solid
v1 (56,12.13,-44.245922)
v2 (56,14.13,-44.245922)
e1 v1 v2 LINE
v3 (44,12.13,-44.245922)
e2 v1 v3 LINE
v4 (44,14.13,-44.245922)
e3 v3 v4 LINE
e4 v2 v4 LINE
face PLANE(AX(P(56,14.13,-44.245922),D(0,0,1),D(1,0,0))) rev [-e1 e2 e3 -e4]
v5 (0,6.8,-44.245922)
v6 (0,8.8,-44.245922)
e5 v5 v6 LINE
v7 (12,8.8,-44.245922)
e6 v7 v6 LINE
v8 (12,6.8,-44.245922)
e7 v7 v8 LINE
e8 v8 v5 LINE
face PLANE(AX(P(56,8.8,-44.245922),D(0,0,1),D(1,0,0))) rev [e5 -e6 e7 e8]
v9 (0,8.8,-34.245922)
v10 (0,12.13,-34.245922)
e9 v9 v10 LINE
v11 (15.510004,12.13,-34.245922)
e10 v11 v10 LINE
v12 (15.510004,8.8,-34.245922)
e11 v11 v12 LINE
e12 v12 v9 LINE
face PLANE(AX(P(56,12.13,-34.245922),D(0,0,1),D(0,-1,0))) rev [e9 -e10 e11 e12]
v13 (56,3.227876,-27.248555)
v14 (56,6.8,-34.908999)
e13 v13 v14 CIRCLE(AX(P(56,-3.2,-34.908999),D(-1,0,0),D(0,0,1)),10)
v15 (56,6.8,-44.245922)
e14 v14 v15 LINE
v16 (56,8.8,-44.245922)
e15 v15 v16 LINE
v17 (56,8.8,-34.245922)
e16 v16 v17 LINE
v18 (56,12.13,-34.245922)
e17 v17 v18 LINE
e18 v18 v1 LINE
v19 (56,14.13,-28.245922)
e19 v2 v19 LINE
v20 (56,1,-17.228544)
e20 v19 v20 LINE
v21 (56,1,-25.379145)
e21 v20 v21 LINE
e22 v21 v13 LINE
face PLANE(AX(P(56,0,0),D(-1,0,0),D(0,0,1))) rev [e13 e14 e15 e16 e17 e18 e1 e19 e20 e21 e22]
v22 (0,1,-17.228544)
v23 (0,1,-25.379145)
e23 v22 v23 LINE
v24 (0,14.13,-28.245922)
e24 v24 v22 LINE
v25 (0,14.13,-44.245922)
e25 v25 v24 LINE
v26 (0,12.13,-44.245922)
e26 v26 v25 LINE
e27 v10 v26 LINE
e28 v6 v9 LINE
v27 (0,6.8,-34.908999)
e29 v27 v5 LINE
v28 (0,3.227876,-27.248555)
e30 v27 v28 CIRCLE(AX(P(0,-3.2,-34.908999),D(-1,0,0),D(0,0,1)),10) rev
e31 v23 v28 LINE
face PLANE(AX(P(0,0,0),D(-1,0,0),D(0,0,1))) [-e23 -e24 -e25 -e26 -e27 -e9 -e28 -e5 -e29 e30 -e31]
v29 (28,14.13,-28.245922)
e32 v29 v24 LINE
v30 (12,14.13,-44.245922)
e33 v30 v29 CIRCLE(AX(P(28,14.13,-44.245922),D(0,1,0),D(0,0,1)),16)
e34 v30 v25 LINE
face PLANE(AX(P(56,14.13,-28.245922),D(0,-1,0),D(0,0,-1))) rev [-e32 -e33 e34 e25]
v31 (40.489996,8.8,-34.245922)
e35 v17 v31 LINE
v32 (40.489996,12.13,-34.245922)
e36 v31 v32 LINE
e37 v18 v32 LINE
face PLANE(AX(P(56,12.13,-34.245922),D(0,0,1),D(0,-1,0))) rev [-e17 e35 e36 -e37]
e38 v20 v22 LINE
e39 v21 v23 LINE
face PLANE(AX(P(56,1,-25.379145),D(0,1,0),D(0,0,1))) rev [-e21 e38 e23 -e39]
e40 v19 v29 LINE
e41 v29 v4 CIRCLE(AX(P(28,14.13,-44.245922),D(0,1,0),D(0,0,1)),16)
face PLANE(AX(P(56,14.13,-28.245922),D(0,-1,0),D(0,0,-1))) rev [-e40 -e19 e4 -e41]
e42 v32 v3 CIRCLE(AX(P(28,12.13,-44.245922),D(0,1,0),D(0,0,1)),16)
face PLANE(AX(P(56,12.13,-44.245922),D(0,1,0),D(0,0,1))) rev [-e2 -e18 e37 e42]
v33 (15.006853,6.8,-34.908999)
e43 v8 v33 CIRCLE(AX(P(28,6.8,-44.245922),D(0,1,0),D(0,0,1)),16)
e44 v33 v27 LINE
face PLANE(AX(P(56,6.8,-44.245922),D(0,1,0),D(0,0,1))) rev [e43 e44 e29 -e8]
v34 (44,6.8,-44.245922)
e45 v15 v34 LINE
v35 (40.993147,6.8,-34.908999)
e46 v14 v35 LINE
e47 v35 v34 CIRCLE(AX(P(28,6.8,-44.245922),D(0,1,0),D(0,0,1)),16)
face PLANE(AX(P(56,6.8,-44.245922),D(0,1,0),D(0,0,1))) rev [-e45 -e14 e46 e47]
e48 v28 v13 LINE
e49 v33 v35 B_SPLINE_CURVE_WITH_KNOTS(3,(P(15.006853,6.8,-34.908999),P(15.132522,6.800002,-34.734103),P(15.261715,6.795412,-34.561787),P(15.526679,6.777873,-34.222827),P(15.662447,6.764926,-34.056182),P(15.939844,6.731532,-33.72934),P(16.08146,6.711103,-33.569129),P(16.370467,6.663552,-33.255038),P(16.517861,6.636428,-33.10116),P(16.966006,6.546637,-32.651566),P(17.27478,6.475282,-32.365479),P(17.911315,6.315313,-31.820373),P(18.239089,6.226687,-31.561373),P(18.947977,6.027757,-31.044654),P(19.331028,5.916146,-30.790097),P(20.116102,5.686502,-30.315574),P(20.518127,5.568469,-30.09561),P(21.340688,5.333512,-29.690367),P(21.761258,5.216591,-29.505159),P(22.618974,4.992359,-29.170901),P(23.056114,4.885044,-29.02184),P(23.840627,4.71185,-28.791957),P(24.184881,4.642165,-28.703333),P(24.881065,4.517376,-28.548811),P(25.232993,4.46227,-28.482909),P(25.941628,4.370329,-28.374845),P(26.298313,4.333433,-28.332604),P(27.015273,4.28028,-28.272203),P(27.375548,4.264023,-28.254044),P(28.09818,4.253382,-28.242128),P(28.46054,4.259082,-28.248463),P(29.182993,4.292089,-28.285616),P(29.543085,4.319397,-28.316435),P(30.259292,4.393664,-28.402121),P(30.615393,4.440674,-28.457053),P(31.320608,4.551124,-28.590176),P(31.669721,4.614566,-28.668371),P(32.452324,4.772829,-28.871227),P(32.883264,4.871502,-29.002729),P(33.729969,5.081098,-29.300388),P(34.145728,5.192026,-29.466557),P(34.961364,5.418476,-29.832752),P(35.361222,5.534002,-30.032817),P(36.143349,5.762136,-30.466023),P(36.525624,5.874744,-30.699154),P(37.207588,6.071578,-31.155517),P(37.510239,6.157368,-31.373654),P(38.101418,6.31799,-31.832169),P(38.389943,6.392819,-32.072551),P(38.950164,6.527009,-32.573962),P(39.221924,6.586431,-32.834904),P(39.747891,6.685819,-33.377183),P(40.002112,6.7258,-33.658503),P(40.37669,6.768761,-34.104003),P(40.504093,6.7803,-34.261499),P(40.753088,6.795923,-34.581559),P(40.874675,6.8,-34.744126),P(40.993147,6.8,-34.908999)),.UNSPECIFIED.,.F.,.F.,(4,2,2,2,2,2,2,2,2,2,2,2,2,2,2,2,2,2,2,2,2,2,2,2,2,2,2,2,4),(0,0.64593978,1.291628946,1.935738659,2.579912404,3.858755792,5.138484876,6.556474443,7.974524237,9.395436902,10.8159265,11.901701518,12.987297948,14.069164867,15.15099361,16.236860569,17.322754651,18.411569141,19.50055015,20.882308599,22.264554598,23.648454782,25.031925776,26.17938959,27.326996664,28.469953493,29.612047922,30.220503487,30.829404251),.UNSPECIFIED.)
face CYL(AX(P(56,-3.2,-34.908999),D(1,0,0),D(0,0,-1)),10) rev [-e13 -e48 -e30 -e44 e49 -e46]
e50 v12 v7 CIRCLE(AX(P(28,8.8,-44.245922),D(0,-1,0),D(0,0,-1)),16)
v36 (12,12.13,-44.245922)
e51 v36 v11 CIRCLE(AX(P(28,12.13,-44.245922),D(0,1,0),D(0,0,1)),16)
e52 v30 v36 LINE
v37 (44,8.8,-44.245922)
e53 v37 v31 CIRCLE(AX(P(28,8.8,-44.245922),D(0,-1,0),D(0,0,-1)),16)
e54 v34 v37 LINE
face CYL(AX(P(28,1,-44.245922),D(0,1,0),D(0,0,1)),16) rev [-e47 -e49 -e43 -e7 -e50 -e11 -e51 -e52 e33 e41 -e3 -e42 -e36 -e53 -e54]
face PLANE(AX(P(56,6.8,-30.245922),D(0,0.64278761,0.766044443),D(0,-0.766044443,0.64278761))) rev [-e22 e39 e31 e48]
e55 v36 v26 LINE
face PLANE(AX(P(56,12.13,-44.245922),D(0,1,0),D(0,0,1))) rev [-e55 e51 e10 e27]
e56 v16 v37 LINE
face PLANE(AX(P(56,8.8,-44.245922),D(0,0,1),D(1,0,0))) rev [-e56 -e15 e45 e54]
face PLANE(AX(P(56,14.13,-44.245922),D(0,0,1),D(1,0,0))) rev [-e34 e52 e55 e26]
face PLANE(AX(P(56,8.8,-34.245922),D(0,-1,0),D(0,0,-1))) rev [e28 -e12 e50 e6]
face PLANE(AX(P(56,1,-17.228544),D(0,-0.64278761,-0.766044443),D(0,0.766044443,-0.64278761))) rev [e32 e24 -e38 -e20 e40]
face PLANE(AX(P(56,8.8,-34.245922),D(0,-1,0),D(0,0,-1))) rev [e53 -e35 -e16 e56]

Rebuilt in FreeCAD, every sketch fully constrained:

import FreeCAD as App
import Part
import Sketcher

V = App.Vector
Q = App.Units.Quantity


def edges_at(feature, points):
    """Names of the edges that pass closest to the given points."""
    edges = feature.Shape.Edges
    near = lambda p: min(range(len(edges)), key=lambda i: edges[i].distToShape(Part.Vertex(*p))[0])
    return sorted({f"Edge{near(p) + 1}" for p in points})

doc = App.newDocument("Part")
params = doc.addObject("Spreadsheet::Sheet", "Params")
for row, (alias, value) in enumerate([
    ("sketch1_width", "2 mm"),
    ("sketch1_height", "10 mm"),
    ("sketch1_height2", "16 mm"),
    ("sketch1_height3", "14 mm"),
    ("sketch1_width2", "3.33 mm"),
    ("pad1_length", "56 mm"),
    ("fillet_radius", "10 mm"),
    ("sketch2_diameter", "32 mm"),
], start=1):
    params.set(f"A{row}", alias)
    params.set(f"B{row}", "=" + value)
    params.setAlias(f"B{row}", alias)

body = doc.addObject("PartDesign::Body", "Body")

# Sketch on YZ plane
sketch1 = body.newObject("Sketcher::SketchObject", "Sketch")
sketch1.AttachmentSupport = (doc.getObject("YZ_Plane"), [""])
sketch1.MapMode = "FlatFace"
sketch1.addGeometry(Part.LineSegment(V(12.1, -34.2, 0), V(12.1, -44.2, 0)), False)
sketch1.addGeometry(Part.LineSegment(V(12.1, -44.2, 0), V(14.1, -44.2, 0)), False)
sketch1.addGeometry(Part.LineSegment(V(14.1, -44.2, 0), V(14.1, -28.2, 0)), False)
sketch1.addGeometry(Part.LineSegment(V(14.1, -28.2, 0), V(1, -17.2, 0)), False)
sketch1.addGeometry(Part.LineSegment(V(1, -17.2, 0), V(1, -25.4, 0)), False)
sketch1.addGeometry(Part.LineSegment(V(1, -25.4, 0), V(6.8, -30.2, 0)), False)
sketch1.addGeometry(Part.LineSegment(V(6.8, -30.2, 0), V(6.8, -44.2, 0)), False)
sketch1.addGeometry(Part.LineSegment(V(6.8, -44.2, 0), V(8.8, -44.2, 0)), False)
sketch1.addGeometry(Part.LineSegment(V(8.8, -44.2, 0), V(8.8, -34.2, 0)), False)
sketch1.addGeometry(Part.LineSegment(V(8.8, -34.2, 0), V(12.1, -34.2, 0)), False)
sketch1.addConstraint(Sketcher.Constraint("Coincident", 0, 2, 1, 1))
sketch1.addConstraint(Sketcher.Constraint("Coincident", 1, 2, 2, 1))
sketch1.addConstraint(Sketcher.Constraint("Coincident", 2, 2, 3, 1))
sketch1.addConstraint(Sketcher.Constraint("Coincident", 3, 2, 4, 1))
sketch1.addConstraint(Sketcher.Constraint("Coincident", 4, 2, 5, 1))
sketch1.addConstraint(Sketcher.Constraint("Coincident", 5, 2, 6, 1))
sketch1.addConstraint(Sketcher.Constraint("Coincident", 6, 2, 7, 1))
sketch1.addConstraint(Sketcher.Constraint("Coincident", 7, 2, 8, 1))
sketch1.addConstraint(Sketcher.Constraint("Coincident", 8, 2, 9, 1))
sketch1.addConstraint(Sketcher.Constraint("Coincident", 9, 2, 0, 1))
sketch1.addConstraint(Sketcher.Constraint("Vertical", 0))
sketch1.addConstraint(Sketcher.Constraint("Horizontal", 1))
sketch1.addConstraint(Sketcher.Constraint("Vertical", 2))
sketch1.addConstraint(Sketcher.Constraint("Vertical", 4))
sketch1.addConstraint(Sketcher.Constraint("Vertical", 6))
sketch1.addConstraint(Sketcher.Constraint("Horizontal", 7))
sketch1.addConstraint(Sketcher.Constraint("Vertical", 8))
sketch1.addConstraint(Sketcher.Constraint("Horizontal", 9))
sketch1.addConstraint(Sketcher.Constraint("Parallel", 3, 5))
sketch1.addConstraint(Sketcher.Constraint("Horizontal", 1, 2, 6, 2))
sketch1.addConstraint(Sketcher.Constraint("Equal", 1, 7))
sketch1.addConstraint(Sketcher.Constraint("DistanceX", 1, 1, 1, 2, Q("2 mm")))
sketch1.addConstraint(Sketcher.Constraint("DistanceY", 0, 2, 0, 1, Q("10 mm")))
sketch1.addConstraint(Sketcher.Constraint("DistanceY", 2, 1, 2, 2, Q("16 mm")))
sketch1.addConstraint(Sketcher.Constraint("DistanceY", 6, 2, 6, 1, Q("14 mm")))
sketch1.addConstraint(Sketcher.Constraint("Angle", 3, Q("140 deg")))
sketch1.addConstraint(Sketcher.Constraint("DistanceX", -1, 1, 3, 2, Q("1 mm")))
sketch1.addConstraint(Sketcher.Constraint("DistanceX", 9, 1, 9, 2, Q("3.33 mm")))
sketch1.addConstraint(Sketcher.Constraint("DistanceX", -1, 1, 5, 2, Q("6.8 mm")))
sketch1.addConstraint(Sketcher.Constraint("DistanceY", 0, 2, -1, 1, Q("44.245922 mm")))
sketch1.setExpression("Constraints[21]", "Params.sketch1_width")
sketch1.setExpression("Constraints[22]", "Params.sketch1_height")
sketch1.setExpression("Constraints[23]", "Params.sketch1_height2")
sketch1.setExpression("Constraints[24]", "Params.sketch1_height3")
sketch1.setExpression("Constraints[27]", "Params.sketch1_width2")
pad1 = body.newObject("PartDesign::Pad", "Pad")
pad1.Profile = sketch1
pad1.setExpression("Length", "Params.pad1_length")
doc.recompute()

fillet = body.newObject("PartDesign::Fillet", "Fillet")
fillet.Base = (pad1, edges_at(pad1, [(28, 6.8, -30.246)]))
fillet.setExpression("Radius", "Params.fillet_radius")

# Sketch on XZ plane
sketch2 = body.newObject("Sketcher::SketchObject", "Sketch001")
sketch2.AttachmentSupport = (doc.getObject("XZ_Plane"), [""])
sketch2.MapMode = "FlatFace"
sketch2.AttachmentOffset = App.Placement(V(0, 0, -14.13), App.Rotation())
sketch2.addGeometry(Part.Circle(V(28, -44, 0), V(0, 0, 1), 16), False)
sketch2.addConstraint(Sketcher.Constraint("Diameter", 0, Q("32 mm")))
sketch2.addConstraint(Sketcher.Constraint("DistanceX", -1, 1, 0, 3, Q("28 mm")))
sketch2.addConstraint(Sketcher.Constraint("DistanceY", 0, 3, -1, 1, Q("44.245922 mm")))
sketch2.setExpression("Constraints[0]", "Params.sketch2_diameter")
pocket1 = body.newObject("PartDesign::Pocket", "Pocket")
pocket1.Profile = sketch2
pocket1.Type = "ThroughAll"
pocket1.Reversed = True

doc.recompute()
